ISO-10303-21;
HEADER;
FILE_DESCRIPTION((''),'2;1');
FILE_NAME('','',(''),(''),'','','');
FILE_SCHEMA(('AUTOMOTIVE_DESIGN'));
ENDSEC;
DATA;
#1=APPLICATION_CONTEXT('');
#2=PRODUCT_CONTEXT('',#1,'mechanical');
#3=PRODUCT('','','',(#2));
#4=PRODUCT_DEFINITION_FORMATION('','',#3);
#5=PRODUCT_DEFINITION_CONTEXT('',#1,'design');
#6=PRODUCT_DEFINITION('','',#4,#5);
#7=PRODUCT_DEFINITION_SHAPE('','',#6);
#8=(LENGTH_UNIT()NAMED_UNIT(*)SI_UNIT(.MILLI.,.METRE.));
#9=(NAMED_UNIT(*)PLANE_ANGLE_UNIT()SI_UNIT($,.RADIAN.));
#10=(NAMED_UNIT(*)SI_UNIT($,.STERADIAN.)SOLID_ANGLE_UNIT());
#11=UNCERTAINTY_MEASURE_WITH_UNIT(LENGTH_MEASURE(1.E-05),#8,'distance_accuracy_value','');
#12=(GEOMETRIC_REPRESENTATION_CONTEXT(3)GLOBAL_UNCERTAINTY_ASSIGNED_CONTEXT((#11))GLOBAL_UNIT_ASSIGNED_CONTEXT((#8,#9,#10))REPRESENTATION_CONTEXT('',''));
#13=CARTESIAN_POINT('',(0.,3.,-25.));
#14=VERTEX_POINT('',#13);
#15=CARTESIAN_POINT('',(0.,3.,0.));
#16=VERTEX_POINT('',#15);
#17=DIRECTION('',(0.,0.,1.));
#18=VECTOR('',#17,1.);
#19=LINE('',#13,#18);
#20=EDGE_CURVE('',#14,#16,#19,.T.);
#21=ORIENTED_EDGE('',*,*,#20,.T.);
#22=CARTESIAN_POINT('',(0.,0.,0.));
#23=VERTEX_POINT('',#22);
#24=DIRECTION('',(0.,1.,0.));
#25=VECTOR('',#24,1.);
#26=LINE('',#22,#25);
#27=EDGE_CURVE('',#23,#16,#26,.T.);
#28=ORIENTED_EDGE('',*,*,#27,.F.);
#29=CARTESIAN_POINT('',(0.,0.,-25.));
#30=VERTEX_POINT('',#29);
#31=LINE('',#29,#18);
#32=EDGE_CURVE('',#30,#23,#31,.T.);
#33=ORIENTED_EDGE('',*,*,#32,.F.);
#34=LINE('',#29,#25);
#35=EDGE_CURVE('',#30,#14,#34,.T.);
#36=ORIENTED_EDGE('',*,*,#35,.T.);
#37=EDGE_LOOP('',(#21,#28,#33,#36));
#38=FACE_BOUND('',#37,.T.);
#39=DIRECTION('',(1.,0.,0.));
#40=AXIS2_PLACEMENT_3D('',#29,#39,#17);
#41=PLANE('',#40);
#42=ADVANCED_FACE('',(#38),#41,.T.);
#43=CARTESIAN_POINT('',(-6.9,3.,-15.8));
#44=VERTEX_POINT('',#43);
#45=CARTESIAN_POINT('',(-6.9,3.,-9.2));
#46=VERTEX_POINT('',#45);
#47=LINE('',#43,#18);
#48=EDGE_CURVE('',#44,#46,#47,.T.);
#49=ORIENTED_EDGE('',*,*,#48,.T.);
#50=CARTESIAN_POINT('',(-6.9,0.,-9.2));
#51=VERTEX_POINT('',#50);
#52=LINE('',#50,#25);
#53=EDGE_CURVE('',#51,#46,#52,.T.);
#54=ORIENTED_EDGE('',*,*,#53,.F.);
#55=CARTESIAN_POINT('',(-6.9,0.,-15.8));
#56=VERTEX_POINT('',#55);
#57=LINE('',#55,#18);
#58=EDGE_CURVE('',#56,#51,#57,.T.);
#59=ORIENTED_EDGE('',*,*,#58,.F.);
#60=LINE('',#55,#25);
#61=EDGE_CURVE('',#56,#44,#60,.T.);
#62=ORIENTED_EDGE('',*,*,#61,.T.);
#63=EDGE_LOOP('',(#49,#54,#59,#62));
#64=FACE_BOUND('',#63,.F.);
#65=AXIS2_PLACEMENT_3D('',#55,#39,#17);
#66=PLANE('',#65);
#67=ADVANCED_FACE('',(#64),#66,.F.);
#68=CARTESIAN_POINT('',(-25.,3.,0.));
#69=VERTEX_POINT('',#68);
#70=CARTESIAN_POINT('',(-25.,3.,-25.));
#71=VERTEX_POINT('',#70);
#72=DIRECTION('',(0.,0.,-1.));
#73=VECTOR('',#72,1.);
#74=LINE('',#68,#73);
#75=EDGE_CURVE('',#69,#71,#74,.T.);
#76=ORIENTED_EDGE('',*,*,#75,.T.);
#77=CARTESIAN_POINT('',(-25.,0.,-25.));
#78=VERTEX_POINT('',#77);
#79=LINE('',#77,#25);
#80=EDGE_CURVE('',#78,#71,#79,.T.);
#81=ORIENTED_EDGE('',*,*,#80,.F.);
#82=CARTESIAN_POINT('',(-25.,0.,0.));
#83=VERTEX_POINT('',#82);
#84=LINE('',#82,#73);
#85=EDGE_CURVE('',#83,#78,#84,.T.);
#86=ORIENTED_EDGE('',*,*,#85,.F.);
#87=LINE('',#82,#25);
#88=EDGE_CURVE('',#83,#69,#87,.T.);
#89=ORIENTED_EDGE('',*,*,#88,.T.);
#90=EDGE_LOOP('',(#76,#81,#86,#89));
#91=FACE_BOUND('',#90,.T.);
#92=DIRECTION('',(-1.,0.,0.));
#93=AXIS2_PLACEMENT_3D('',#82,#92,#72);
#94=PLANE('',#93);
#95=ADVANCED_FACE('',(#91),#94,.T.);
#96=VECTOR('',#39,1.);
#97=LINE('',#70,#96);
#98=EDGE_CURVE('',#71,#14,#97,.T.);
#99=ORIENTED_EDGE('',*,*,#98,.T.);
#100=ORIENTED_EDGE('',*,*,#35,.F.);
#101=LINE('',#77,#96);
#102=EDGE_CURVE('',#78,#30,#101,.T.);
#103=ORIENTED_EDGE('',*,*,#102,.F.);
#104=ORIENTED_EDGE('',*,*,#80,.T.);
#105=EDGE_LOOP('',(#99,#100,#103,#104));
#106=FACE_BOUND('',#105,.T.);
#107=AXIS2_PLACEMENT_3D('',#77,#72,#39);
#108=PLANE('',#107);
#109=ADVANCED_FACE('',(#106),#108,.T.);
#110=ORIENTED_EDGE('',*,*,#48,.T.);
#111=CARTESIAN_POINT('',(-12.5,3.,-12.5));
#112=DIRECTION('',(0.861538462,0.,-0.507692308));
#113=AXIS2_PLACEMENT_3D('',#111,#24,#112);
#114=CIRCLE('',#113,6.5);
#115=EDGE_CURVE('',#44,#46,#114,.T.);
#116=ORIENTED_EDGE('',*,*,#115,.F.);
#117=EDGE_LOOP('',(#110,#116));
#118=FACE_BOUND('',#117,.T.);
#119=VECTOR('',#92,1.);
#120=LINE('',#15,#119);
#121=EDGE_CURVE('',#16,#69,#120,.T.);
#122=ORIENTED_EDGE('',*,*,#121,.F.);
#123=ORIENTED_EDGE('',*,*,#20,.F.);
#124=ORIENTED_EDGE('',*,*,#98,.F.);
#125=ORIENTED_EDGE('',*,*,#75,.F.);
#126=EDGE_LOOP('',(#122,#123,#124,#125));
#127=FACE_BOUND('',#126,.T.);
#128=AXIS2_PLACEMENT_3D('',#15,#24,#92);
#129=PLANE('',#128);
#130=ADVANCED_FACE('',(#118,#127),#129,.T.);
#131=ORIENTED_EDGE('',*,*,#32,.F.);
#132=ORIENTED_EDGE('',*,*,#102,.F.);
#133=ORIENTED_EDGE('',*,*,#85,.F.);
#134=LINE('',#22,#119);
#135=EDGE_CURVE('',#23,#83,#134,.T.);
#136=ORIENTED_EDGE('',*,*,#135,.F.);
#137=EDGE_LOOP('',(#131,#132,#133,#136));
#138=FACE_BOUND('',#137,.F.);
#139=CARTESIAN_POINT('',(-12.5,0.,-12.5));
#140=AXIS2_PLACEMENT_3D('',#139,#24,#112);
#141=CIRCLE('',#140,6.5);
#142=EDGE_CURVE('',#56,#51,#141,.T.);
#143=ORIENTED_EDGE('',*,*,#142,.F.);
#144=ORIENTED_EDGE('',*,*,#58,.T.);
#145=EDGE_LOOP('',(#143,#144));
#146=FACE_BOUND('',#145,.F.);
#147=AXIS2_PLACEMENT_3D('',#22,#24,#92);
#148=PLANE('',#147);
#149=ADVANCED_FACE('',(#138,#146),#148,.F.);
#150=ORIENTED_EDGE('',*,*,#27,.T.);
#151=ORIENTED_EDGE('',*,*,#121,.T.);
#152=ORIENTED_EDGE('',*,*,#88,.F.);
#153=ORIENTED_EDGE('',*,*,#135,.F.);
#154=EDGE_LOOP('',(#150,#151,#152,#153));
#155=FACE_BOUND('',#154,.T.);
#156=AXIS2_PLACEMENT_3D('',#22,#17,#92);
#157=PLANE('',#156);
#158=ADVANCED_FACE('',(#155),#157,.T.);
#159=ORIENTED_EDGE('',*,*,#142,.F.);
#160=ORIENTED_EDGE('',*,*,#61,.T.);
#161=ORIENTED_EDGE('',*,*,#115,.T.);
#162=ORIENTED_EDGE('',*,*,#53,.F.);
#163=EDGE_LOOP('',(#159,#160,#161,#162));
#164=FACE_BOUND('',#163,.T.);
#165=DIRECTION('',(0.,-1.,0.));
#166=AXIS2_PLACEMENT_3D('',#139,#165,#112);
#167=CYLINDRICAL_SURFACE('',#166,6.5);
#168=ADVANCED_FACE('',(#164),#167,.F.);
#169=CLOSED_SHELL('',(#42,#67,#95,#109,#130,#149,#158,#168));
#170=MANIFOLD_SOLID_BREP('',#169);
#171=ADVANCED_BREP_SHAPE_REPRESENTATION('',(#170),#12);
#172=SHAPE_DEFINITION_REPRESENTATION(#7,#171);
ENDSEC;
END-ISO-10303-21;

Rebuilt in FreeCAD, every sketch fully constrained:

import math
import FreeCAD as App
import Part
import Sketcher

V = App.Vector

doc = App.newDocument("Part")
params = doc.addObject("Spreadsheet::Sheet", "Params")
for row, (alias, value) in enumerate([
    ("sketch1_radius", "6.5 mm"),
    ("sketch1_width", "25 mm"),
    ("sketch1_width2", "5.6 mm"),
    ("pad1_length", "3 mm"),
], start=1):
    params.set(f"A{row}", alias)
    params.set(f"B{row}", "=" + value)
    params.setAlias(f"B{row}", alias)

body = doc.addObject("PartDesign::Body", "Body")

# Sketch on XZ plane
sketch1 = doc.addObject("Sketcher::SketchObject", "Sketch")
body.addObject(sketch1)
sketch1.AttachmentSupport = (doc.XZ_Plane, [""])
sketch1.MapMode = "FlatFace"
sketch1.addGeometry([
    Part.LineSegment(V(-25, 0, 0), V(0, 0, 0)),  # 0
    Part.LineSegment(V(0, 0, 0), V(0, -25, 0)),  # 1
    Part.LineSegment(V(0, -25, 0), V(-25, -25, 0)),  # 2
    Part.LineSegment(V(-25, -25, 0), V(-25, 0, 0)),  # 3
    Part.ArcOfCircle(Part.Circle(V(-12.5, -12.5, 0), V(0, 0, 1), 6.5), math.radians(30.510237), math.radians(329.489763)),  # 4
    Part.LineSegment(V(-6.9, -15.8, 0), V(-6.9, -9.2, 0)),  # 5
], False)
sketch1.addConstraint([
    Sketcher.Constraint("Coincident", 0, 2, 1, 1),
    Sketcher.Constraint("Coincident", 1, 2, 2, 1),
    Sketcher.Constraint("Coincident", 2, 2, 3, 1),
    Sketcher.Constraint("Coincident", 3, 2, 0, 1),
    Sketcher.Constraint("Coincident", 4, 1, 5, 2),
    Sketcher.Constraint("Coincident", 5, 1, 4, 2),
    Sketcher.Constraint("Horizontal", 0),
    Sketcher.Constraint("Vertical", 1),
    Sketcher.Constraint("Horizontal", 2),
    Sketcher.Constraint("Vertical", 3),
    Sketcher.Constraint("Vertical", 5),
    Sketcher.Constraint("Coincident", 0, 2, -1, 1),
    Sketcher.Constraint("Equal", 2, 1),
    Sketcher.Constraint("Radius", 4, 6.5),
    Sketcher.Constraint("DistanceX", 0, 1, 0, 2, 25.0),
    Sketcher.Constraint("DistanceX", 4, 3, -1, 1, 12.5),
    Sketcher.Constraint("DistanceY", 4, 3, -1, 1, 12.5),
    Sketcher.Constraint("DistanceX", 4, 3, 4, 1, 5.6),
])
sketch1.setExpression("Constraints[13]", "Params.sketch1_radius")
sketch1.setExpression("Constraints[14]", "Params.sketch1_width")
sketch1.setExpression("Constraints[17]", "Params.sketch1_width2")
pad1 = doc.addObject("PartDesign::Pad", "Pad")
body.addObject(pad1)
pad1.Profile = sketch1
pad1.setExpression("Length", "Params.pad1_length")
pad1.Reversed = True

doc.recompute()
